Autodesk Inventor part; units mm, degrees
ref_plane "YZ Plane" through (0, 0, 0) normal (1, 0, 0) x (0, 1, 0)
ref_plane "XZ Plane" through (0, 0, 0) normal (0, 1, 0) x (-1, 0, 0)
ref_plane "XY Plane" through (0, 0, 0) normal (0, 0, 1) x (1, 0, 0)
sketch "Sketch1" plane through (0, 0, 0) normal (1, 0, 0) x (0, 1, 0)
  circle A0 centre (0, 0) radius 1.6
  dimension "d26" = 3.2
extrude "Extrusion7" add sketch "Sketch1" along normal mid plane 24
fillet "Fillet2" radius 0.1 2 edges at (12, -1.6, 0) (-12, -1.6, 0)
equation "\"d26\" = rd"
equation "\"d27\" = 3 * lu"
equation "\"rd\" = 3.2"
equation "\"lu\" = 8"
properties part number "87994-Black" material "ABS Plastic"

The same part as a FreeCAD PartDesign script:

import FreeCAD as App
import Part
import Sketcher
from FreeCAD import Vector


def edges_at(feature, points):
    """Names of the edges that pass closest to the given points."""
    edges = feature.Shape.Edges
    near = lambda p: min(range(len(edges)), key=lambda i: edges[i].distToShape(Part.Vertex(*p))[0])
    return sorted({f"Edge{near(p) + 1}" for p in points})

doc = App.newDocument("Part")
body = doc.addObject("PartDesign::Body", "Body")

sketch1 = body.newObject("Sketcher::SketchObject", "Sketch")
sketch1.AttachmentSupport = (doc.getObject("YZ_Plane"), [""])
sketch1.MapMode = "FlatFace"
sketch1.addGeometry(Part.Circle(Vector(0, 0, 0), Vector(0, 0, 1), 1.6), False)
sketch1.addConstraint(Sketcher.Constraint("Coincident", 0, 3, -1, 1))
sketch1.addConstraint(Sketcher.Constraint("Diameter", 0, 3.2))
pad1 = body.newObject("PartDesign::Pad", "Pad")
pad1.Profile = sketch1
pad1.Length = 24
pad1.Midplane = True
doc.recompute()

fillet = body.newObject("PartDesign::Fillet", "Fillet")
fillet.Base = (pad1, edges_at(pad1, [(12, -1.6, 0), (-12, -1.6, 0)]))
fillet.Radius = 0.1

doc.recompute()
